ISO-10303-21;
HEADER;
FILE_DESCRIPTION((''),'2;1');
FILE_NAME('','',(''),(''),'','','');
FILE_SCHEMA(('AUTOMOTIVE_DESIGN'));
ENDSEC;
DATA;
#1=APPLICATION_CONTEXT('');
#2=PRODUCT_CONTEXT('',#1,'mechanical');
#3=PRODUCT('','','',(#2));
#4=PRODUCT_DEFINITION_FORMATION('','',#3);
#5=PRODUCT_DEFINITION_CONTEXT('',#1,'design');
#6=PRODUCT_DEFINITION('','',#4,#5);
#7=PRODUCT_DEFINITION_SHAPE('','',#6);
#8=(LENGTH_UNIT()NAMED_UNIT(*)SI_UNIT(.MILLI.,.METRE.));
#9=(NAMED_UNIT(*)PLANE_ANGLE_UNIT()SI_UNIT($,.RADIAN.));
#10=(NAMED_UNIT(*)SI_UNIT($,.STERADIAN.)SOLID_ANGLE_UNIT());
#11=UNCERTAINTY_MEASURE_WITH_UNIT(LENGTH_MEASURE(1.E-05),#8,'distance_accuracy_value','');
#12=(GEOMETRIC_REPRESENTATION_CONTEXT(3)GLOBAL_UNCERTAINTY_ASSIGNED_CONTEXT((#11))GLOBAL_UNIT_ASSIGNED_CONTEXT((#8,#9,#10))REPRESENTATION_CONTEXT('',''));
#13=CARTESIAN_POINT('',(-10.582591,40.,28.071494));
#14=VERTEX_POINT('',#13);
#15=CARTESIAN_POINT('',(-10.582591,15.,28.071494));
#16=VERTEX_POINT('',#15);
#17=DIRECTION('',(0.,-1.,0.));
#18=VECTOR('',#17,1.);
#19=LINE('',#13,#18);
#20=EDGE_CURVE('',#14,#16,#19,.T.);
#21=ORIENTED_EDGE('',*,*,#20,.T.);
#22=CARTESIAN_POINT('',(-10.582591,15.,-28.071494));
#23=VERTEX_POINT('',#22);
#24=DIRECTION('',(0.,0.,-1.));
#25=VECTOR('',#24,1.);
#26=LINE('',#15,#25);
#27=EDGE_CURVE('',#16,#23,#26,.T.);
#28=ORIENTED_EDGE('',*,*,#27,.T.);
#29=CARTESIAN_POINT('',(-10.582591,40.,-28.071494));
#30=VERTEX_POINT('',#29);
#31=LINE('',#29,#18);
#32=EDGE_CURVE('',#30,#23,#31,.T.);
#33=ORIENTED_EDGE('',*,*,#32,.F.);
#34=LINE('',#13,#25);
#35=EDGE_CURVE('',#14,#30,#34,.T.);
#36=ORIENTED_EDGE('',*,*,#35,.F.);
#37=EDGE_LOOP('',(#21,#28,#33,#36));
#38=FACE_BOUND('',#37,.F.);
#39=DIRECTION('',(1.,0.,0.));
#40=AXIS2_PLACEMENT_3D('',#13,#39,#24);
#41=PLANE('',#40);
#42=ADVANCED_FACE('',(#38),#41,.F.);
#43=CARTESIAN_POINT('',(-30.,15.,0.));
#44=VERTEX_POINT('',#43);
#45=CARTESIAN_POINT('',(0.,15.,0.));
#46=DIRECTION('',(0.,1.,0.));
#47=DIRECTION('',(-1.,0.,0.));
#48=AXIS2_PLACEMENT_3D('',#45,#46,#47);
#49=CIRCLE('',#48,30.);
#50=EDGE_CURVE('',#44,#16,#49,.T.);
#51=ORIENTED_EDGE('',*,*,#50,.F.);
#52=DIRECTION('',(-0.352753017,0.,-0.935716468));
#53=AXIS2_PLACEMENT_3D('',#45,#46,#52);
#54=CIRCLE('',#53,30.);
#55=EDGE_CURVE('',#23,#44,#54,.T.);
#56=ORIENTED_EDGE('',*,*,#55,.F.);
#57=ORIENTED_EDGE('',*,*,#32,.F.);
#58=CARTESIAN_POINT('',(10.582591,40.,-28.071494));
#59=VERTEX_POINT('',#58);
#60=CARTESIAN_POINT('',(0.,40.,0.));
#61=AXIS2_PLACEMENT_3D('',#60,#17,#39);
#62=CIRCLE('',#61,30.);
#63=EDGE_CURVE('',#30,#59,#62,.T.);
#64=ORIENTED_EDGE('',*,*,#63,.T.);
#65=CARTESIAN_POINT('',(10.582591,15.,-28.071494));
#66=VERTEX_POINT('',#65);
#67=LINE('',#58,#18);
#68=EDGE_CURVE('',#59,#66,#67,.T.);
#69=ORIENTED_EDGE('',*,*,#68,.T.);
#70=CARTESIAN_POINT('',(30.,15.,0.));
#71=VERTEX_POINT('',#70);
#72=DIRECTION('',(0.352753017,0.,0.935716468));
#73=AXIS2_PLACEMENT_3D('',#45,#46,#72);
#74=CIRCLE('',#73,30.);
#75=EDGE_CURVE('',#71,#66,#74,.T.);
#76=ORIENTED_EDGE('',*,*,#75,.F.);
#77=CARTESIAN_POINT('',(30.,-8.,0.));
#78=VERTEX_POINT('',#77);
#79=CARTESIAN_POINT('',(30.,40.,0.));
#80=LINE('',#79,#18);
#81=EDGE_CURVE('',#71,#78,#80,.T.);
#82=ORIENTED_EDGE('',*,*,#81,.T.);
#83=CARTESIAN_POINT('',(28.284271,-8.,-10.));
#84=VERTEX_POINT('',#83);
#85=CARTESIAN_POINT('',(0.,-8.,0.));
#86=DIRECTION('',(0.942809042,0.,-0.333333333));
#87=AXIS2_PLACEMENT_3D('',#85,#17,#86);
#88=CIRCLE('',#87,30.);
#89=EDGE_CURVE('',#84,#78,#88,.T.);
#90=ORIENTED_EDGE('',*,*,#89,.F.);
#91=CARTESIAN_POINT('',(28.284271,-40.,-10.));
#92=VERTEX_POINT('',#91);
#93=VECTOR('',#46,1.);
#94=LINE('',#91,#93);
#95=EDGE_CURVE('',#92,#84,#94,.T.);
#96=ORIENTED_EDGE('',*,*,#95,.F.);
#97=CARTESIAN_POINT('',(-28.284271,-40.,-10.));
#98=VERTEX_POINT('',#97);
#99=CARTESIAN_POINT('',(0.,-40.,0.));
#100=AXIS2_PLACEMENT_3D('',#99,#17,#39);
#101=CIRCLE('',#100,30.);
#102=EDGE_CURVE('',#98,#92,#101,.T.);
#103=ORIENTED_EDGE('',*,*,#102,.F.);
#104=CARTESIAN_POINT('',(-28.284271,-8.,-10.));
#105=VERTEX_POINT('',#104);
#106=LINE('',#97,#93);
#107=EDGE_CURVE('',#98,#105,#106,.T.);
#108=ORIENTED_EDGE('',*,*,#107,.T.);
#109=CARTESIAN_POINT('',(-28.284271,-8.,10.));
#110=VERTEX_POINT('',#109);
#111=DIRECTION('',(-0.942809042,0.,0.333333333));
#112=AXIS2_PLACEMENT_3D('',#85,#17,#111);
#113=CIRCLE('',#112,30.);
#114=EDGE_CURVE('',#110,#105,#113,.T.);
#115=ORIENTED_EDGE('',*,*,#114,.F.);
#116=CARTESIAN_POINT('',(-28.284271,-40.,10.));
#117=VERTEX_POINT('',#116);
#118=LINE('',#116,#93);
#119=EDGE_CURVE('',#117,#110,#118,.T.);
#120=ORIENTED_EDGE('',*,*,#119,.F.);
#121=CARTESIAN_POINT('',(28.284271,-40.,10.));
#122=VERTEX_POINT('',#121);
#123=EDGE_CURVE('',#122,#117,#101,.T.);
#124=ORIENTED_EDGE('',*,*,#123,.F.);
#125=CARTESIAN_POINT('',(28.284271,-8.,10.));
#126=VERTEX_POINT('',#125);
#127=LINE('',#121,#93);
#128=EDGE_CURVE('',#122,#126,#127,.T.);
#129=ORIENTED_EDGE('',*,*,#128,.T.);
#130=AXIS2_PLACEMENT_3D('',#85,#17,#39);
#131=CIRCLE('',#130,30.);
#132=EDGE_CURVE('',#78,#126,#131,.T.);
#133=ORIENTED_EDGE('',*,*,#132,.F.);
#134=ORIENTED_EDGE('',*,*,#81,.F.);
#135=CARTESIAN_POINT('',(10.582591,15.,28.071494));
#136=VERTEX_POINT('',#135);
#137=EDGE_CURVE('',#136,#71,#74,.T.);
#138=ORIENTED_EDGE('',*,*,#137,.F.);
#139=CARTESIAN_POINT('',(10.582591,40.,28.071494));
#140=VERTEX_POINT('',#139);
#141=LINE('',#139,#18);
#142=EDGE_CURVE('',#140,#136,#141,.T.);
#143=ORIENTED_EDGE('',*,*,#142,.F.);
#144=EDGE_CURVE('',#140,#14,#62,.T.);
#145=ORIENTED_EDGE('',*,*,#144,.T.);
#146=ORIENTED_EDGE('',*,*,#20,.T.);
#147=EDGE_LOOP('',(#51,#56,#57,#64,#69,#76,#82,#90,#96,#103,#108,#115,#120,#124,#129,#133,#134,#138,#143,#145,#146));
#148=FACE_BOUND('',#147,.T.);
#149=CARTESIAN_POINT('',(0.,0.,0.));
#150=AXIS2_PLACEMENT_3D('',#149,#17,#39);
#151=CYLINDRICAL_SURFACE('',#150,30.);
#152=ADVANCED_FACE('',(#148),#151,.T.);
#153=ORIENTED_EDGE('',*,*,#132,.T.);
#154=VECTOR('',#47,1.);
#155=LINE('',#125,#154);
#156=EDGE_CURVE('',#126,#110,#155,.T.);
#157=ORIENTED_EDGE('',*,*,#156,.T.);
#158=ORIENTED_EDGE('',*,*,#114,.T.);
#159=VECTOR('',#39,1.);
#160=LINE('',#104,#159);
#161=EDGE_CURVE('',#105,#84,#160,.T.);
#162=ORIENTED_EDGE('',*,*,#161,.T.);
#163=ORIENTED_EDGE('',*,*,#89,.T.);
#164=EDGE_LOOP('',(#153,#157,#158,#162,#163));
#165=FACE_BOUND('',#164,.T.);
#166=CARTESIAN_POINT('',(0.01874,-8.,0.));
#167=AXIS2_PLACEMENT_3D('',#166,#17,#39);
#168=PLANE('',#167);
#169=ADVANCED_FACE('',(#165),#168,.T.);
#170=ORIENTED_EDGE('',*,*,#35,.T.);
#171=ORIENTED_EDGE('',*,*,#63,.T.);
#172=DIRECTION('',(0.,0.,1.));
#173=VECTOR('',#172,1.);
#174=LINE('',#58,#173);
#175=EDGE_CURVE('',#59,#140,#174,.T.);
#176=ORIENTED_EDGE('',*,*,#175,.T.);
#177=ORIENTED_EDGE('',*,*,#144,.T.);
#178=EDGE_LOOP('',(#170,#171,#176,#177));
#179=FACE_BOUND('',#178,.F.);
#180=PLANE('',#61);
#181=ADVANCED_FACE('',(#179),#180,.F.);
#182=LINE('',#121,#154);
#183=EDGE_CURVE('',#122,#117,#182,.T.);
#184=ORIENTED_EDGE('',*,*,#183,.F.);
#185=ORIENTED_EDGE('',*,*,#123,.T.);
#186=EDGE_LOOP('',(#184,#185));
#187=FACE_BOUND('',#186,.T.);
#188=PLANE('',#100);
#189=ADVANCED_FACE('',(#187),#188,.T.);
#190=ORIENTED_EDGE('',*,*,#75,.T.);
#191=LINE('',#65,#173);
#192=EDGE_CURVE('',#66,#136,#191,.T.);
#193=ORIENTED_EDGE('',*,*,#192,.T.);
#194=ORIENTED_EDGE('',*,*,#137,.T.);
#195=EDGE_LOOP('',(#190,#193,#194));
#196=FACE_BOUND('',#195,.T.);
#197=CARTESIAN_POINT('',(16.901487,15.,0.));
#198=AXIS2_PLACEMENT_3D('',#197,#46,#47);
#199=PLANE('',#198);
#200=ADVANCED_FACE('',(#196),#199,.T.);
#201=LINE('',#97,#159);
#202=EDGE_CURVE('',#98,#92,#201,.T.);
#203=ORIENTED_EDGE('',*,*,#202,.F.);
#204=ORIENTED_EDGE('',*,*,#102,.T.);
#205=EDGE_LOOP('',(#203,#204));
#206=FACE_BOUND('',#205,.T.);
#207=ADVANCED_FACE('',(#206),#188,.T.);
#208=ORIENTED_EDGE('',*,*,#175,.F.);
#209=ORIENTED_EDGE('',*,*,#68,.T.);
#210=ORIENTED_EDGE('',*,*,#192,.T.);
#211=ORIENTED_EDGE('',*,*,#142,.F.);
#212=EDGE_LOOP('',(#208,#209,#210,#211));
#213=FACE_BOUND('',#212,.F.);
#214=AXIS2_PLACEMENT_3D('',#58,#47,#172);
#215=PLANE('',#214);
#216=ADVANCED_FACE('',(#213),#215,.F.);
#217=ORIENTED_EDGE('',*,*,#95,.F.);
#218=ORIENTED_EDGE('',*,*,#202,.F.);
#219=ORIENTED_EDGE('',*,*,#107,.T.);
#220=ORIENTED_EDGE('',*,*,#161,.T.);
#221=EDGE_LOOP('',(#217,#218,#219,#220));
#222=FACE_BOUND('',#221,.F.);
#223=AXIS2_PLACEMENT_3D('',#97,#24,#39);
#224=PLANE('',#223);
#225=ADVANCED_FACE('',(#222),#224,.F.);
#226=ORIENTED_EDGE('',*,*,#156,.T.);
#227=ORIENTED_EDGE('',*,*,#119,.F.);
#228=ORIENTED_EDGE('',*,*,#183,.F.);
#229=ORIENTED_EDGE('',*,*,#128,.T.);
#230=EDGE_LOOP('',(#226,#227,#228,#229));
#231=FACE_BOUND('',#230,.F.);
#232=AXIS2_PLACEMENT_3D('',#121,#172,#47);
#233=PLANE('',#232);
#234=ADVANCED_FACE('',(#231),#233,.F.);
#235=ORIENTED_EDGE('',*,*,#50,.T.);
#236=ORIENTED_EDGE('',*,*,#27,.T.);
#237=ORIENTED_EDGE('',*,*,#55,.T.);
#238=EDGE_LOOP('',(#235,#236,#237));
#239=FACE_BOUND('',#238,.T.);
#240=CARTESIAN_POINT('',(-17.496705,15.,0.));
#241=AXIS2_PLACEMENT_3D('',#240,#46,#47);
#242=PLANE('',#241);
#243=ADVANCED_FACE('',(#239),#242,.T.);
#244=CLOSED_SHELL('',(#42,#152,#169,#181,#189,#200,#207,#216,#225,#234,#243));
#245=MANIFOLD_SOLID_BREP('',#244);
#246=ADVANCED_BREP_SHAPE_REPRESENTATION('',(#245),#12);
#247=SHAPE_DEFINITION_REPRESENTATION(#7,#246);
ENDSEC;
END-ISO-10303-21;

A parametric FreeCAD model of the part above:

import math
import FreeCAD as App
import Part
import Sketcher

V = App.Vector

doc = App.newDocument("Part")
body = doc.addObject("PartDesign::Body", "Body")

# Sketch on XZ plane
sketch1 = body.newObject("Sketcher::SketchObject", "Sketch")
sketch1.AttachmentSupport = (doc.getObject("XZ_Plane"), [""])
sketch1.MapMode = "FlatFace"
sketch1.addGeometry(Part.Circle(V(0, 0, 0), V(0, 0, 1), 30), False)
sketch1.addConstraint(Sketcher.Constraint("Coincident", 0, 3, -1, 1))
sketch1.addConstraint(Sketcher.Constraint("Diameter", 0, 60.0))
pad1 = body.newObject("PartDesign::Pad", "Pad")
pad1.Profile = sketch1
pad1.Length = 80
pad1.Midplane = True

# Sketch on XZ plane
sketch2 = body.newObject("Sketcher::SketchObject", "Sketch001")
sketch2.AttachmentSupport = (doc.getObject("XZ_Plane"), [""])
sketch2.MapMode = "FlatFace"
sketch2.AttachmentOffset = App.Placement(V(0, 0, 40), App.Rotation())
sketch2.addGeometry(Part.LineSegment(V(28.284271, 10, 0), V(-28.284271, 10, 0)), False)
sketch2.addGeometry(Part.ArcOfCircle(Part.Circle(V(0, 0, 0), V(0, 0, 1), 30), math.radians(160.528779), math.radians(199.471221)), False)
sketch2.addGeometry(Part.LineSegment(V(-28.284271, -10, 0), V(28.284271, -10, 0)), False)
sketch2.addGeometry(Part.ArcOfCircle(Part.Circle(V(0, 0, 0), V(0, 0, 1), 30), math.radians(-19.471221), math.radians(0)), False)
sketch2.addGeometry(Part.ArcOfCircle(Part.Circle(V(0, 0, 0), V(0, 0, 1), 30), math.radians(0), math.radians(19.471221)), False)
sketch2.addConstraint(Sketcher.Constraint("Coincident", 0, 2, 1, 1))
sketch2.addConstraint(Sketcher.Constraint("Coincident", 1, 2, 2, 1))
sketch2.addConstraint(Sketcher.Constraint("Coincident", 2, 2, 3, 1))
sketch2.addConstraint(Sketcher.Constraint("Tangent", 3, 2, 4, 1))
sketch2.addConstraint(Sketcher.Constraint("Coincident", 4, 2, 0, 1))
sketch2.addConstraint(Sketcher.Constraint("Horizontal", 0))
sketch2.addConstraint(Sketcher.Constraint("Horizontal", 2))
sketch2.addConstraint(Sketcher.Constraint("Coincident", 1, 3, -1, 1))
sketch2.addConstraint(Sketcher.Constraint("Coincident", 3, 3, -1, 1))
sketch2.addConstraint(Sketcher.Constraint("Equal", 1, 3))
sketch2.addConstraint(Sketcher.Constraint("Equal", 3, 4))
sketch2.addConstraint(Sketcher.Constraint("PointOnObject", 3, 2, -1))
sketch2.addConstraint(Sketcher.Constraint("Vertical", 0, 2, 1, 2))
sketch2.addConstraint(Sketcher.Constraint("Radius", 1, 30.0))
sketch2.addConstraint(Sketcher.Constraint("DistanceY", -1, 1, 0, 2, 10.0))
pocket1 = body.newObject("PartDesign::Pocket", "Pocket")
pocket1.Profile = sketch2
pocket1.Length = 32

# Sketch on XZ plane
sketch3 = body.newObject("Sketcher::SketchObject", "Sketch002")
sketch3.AttachmentSupport = (doc.getObject("XZ_Plane"), [""])
sketch3.MapMode = "FlatFace"
sketch3.AttachmentOffset = App.Placement(V(0, 0, -40), App.Rotation())
sketch3.addGeometry(Part.LineSegment(V(-10.582591, 28.071494, 0), V(-10.582591, -28.071494, 0)), False)
sketch3.addGeometry(Part.ArcOfCircle(Part.Circle(V(0, 0, 0), V(0, 0, 1), 30), math.radians(180), math.radians(249.344205)), False)
sketch3.addGeometry(Part.ArcOfCircle(Part.Circle(V(0, 0, 0), V(0, 0, 1), 30), math.radians(110.655795), math.radians(180)), False)
sketch3.addGeometry(Part.ArcOfCircle(Part.Circle(V(0, 0, 0), V(0, 0, 1), 30), math.radians(-69.344205), math.radians(69.344205)), False)
sketch3.addGeometry(Part.LineSegment(V(10.582591, -28.071494, 0), V(10.582591, 28.071494, 0)), False)
sketch3.addConstraint(Sketcher.Constraint("Coincident", 0, 2, 1, 2))
sketch3.addConstraint(Sketcher.Constraint("Tangent", 1, 1, 2, 2))
sketch3.addConstraint(Sketcher.Constraint("Coincident", 2, 1, 0, 1))
sketch3.addConstraint(Sketcher.Constraint("Coincident", 3, 1, 4, 1))
sketch3.addConstraint(Sketcher.Constraint("Coincident", 4, 2, 3, 2))
sketch3.addConstraint(Sketcher.Constraint("Vertical", 0))
sketch3.addConstraint(Sketcher.Constraint("Vertical", 4))
sketch3.addConstraint(Sketcher.Constraint("Coincident", 1, 3, -1, 1))
sketch3.addConstraint(Sketcher.Constraint("Coincident", 3, 3, -1, 1))
sketch3.addConstraint(Sketcher.Constraint("Equal", 1, 2))
sketch3.addConstraint(Sketcher.Constraint("Equal", 2, 3))
sketch3.addConstraint(Sketcher.Constraint("PointOnObject", 1, 1, -1))
sketch3.addConstraint(Sketcher.Constraint("Horizontal", 0, 2, 3, 1))
sketch3.addConstraint(Sketcher.Constraint("Radius", 1, 30.0))
sketch3.addConstraint(Sketcher.Constraint("DistanceY", 0, 2, 0, 1, 56.142988))
pocket2 = body.newObject("PartDesign::Pocket", "Pocket001")
pocket2.Profile = sketch3
pocket2.Length = 25
pocket2.Reversed = True

doc.recompute()
